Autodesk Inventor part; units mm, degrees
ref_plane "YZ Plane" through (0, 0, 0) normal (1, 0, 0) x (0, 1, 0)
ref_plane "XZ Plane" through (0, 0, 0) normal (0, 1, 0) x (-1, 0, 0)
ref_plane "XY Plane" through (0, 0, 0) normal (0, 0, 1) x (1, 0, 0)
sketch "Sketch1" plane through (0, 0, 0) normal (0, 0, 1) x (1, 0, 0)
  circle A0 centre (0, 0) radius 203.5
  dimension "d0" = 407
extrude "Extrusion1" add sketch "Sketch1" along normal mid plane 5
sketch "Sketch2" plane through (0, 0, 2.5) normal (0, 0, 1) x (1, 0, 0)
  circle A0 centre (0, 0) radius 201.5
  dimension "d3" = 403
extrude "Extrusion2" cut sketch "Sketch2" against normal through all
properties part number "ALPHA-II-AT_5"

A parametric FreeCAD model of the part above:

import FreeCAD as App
import Part
import Sketcher

doc = App.newDocument("Part")
body = doc.addObject("PartDesign::Body", "Body")

# Sketch on XY plane
sketch1 = doc.addObject("Sketcher::SketchObject", "Sketch")
body.addObject(sketch1)
sketch1.AttachmentSupport = (doc.XY_Plane, [""])
sketch1.MapMode = "FlatFace"
sketch1.addGeometry(Part.Circle(App.Vector(0, 0, 0), App.Vector(0, 0, 1), 204), False)
sketch1.addConstraint(Sketcher.Constraint("Coincident", 0, 3, -1, 1))
sketch1.addConstraint(Sketcher.Constraint("Diameter", 0, 407.0))
pad1 = doc.addObject("PartDesign::Pad", "Pad")
body.addObject(pad1)
pad1.Profile = sketch1
pad1.Length = 5
pad1.Midplane = True

# Sketch on XY plane
sketch2 = doc.addObject("Sketcher::SketchObject", "Sketch001")
body.addObject(sketch2)
sketch2.AttachmentSupport = (doc.XY_Plane, [""])
sketch2.MapMode = "FlatFace"
sketch2.AttachmentOffset = App.Placement(App.Vector(0, 0, 2.5), App.Rotation())
sketch2.addGeometry(Part.Circle(App.Vector(0, 0, 0), App.Vector(0, 0, 1), 202), False)
sketch2.addConstraint(Sketcher.Constraint("Coincident", 0, 3, -1, 1))
sketch2.addConstraint(Sketcher.Constraint("Diameter", 0, 403.0))
pocket1 = doc.addObject("PartDesign::Pocket", "Pocket")
body.addObject(pocket1)
pocket1.Profile = sketch2
pocket1.Type = "ThroughAll"

doc.recompute()
